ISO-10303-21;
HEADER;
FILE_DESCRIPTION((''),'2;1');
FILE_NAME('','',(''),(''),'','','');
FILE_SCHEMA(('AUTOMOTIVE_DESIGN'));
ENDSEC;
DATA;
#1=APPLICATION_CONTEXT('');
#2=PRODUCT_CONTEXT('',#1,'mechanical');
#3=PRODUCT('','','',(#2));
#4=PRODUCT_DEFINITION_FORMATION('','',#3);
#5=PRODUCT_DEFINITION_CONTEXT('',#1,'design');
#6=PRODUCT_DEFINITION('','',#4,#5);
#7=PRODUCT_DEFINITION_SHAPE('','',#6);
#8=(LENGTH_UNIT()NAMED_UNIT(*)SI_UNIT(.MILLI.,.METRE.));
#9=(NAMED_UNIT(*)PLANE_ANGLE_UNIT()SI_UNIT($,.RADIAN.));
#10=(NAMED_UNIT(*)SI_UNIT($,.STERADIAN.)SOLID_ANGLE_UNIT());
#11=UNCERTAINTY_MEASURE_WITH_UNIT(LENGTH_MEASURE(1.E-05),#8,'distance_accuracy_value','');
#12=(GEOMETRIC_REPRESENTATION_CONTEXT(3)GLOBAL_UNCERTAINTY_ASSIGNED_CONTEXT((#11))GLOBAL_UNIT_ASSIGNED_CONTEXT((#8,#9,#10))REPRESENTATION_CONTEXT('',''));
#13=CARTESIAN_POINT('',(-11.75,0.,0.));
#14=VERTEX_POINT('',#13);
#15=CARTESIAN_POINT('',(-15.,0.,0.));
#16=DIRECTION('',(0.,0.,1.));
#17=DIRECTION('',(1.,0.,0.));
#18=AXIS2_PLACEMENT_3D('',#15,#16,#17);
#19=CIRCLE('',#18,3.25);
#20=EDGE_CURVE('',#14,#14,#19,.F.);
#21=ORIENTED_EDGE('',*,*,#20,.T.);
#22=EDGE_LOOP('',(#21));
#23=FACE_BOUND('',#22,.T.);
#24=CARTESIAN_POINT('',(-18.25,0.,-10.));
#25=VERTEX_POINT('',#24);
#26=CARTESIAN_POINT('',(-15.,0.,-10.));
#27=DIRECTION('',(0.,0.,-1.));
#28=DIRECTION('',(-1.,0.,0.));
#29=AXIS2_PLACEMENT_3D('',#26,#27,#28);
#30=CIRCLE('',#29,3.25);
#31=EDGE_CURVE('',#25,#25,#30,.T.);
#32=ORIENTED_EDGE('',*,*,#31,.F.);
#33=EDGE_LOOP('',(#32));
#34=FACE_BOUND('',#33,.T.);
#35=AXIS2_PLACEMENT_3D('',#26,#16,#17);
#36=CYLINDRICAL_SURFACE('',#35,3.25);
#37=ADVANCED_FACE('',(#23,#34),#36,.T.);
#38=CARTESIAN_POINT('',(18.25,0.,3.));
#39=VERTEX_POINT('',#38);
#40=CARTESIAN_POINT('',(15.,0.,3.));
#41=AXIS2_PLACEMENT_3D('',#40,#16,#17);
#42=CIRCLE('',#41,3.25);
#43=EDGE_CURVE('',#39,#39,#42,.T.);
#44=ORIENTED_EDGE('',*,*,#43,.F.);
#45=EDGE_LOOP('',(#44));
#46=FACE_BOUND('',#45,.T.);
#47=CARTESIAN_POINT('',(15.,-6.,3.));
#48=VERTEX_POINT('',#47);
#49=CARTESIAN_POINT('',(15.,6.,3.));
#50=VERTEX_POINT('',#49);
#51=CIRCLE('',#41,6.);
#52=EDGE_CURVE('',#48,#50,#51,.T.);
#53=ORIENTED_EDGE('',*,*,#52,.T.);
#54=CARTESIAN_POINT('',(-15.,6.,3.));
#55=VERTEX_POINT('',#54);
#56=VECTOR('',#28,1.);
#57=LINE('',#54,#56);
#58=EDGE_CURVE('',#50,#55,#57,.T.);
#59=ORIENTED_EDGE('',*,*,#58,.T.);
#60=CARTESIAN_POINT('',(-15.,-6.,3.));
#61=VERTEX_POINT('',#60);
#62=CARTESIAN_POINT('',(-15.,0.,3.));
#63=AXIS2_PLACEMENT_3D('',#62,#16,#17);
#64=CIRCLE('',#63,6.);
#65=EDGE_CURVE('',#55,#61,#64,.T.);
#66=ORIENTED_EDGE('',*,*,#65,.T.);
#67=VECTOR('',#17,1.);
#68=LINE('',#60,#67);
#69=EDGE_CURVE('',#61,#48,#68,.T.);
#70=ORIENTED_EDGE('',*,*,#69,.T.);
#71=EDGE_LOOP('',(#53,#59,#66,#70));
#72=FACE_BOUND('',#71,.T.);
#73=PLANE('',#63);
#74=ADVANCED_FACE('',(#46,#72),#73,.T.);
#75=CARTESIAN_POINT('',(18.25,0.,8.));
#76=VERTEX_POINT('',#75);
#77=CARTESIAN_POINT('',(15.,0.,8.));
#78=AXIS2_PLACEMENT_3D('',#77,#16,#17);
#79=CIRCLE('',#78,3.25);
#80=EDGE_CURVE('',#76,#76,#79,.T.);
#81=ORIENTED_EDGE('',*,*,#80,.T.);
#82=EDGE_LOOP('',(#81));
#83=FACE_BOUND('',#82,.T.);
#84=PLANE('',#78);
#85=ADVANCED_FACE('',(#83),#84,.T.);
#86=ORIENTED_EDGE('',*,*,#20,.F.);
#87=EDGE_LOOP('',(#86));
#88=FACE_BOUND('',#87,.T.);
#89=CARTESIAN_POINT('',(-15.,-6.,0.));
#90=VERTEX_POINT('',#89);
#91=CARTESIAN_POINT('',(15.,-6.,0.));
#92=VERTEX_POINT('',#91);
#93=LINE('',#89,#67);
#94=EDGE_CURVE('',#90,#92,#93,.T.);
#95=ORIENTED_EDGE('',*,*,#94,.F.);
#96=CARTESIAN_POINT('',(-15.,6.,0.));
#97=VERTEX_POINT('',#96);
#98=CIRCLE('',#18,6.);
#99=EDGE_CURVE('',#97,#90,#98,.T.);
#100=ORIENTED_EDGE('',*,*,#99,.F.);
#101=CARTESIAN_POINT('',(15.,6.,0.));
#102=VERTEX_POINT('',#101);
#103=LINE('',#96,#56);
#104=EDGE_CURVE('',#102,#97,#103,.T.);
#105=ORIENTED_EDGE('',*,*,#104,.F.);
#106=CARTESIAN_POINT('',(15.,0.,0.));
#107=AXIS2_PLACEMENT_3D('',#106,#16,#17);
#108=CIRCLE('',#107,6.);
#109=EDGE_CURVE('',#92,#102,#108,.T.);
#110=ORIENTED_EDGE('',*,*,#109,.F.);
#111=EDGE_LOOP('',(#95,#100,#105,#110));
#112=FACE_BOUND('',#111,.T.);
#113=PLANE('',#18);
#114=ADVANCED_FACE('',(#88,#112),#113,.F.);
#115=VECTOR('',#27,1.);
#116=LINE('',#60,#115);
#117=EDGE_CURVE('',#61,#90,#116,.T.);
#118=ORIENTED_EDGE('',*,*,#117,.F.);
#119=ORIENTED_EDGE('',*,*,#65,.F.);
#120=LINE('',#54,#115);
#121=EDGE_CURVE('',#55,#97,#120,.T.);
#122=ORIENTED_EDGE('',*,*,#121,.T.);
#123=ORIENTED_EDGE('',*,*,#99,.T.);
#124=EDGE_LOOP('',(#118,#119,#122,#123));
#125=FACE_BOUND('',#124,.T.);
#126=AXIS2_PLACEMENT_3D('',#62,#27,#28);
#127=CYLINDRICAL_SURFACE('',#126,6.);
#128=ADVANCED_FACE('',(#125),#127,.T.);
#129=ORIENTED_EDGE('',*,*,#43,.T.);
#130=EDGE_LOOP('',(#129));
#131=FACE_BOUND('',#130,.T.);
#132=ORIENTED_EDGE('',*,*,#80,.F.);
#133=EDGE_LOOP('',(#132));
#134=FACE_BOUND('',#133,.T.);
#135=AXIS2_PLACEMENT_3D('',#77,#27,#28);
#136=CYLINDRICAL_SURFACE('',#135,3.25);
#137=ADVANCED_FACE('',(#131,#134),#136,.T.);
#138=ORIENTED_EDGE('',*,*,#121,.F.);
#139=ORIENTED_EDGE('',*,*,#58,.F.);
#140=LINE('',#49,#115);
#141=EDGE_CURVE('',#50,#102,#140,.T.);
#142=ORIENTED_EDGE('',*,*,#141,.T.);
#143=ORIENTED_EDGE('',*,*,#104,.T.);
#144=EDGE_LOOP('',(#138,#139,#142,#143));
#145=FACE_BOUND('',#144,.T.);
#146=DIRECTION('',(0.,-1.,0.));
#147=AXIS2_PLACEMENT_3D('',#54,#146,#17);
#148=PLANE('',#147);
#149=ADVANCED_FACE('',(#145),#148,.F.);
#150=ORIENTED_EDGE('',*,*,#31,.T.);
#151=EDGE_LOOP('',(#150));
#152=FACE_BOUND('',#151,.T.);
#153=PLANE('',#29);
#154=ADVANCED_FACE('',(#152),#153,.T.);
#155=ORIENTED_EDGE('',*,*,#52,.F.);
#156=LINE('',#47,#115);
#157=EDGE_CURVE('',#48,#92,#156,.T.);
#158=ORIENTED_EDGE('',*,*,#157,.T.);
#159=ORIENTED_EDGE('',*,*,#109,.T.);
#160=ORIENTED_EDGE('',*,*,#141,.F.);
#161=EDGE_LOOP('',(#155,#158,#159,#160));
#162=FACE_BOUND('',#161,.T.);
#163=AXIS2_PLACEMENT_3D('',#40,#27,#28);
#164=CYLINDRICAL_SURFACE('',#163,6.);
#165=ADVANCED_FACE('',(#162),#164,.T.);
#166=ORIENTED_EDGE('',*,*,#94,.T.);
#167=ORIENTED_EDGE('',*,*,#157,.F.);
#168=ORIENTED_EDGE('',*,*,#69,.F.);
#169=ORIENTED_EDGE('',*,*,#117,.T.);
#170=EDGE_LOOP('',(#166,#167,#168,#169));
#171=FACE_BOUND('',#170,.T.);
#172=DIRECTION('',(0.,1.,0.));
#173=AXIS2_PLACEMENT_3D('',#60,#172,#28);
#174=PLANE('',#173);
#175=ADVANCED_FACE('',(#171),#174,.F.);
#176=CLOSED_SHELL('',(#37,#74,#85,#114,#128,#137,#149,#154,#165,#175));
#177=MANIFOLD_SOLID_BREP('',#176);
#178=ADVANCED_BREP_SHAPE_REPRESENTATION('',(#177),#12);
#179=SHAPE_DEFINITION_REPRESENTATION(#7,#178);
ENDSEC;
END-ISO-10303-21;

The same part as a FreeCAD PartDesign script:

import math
import FreeCAD as App
import Part
import Sketcher

V = App.Vector
Q = App.Units.Quantity

doc = App.newDocument("Part")
body = doc.addObject("PartDesign::Body", "Body")

sketch1 = body.newObject("Sketcher::SketchObject", "Sketch")
sketch1.AttachmentSupport = (doc.getObject("XY_Plane"), [""])
sketch1.MapMode = "FlatFace"
sketch1.addGeometry([
    Part.LineSegment(V(15, 6, 0), V(-15, 6, 0)),
    Part.ArcOfCircle(Part.Circle(V(-15, 0, 0), V(0, 0, 1), 6), math.radians(90), math.radians(270)),
    Part.LineSegment(V(-15, -6, 0), V(15, -6, 0)),
    Part.ArcOfCircle(Part.Circle(V(15, 0, 0), V(0, 0, 1), 6), math.radians(-90), math.radians(90)),
], False)
sketch1.addConstraint([
    Sketcher.Constraint("Tangent", 0, 2, 1, 1),
    Sketcher.Constraint("Tangent", 1, 2, 2, 1),
    Sketcher.Constraint("Tangent", 2, 2, 3, 1),
    Sketcher.Constraint("Tangent", 3, 2, 0, 1),
    Sketcher.Constraint("Horizontal", 0),
    Sketcher.Constraint("Horizontal", 2),
    Sketcher.Constraint("Symmetric", 1, 3, 3, 3, -1, 1),
    Sketcher.Constraint("Radius", 1, Q("6 mm")),
    Sketcher.Constraint("DistanceX", 0, 2, 0, 1, Q("30 mm")),
])
pad1 = body.newObject("PartDesign::Pad", "Pad")
pad1.Profile = sketch1
pad1.Length = 3

sketch2 = body.newObject("Sketcher::SketchObject", "Sketch001")
sketch2.AttachmentSupport = (doc.getObject("XY_Plane"), [""])
sketch2.MapMode = "FlatFace"
sketch2.AttachmentOffset = App.Placement(V(0, 0, 3), App.Rotation())
sketch2.addGeometry(Part.Circle(V(15, 0, 0), V(0, 0, 1), 3.25), False)
sketch2.addConstraint([
    Sketcher.Constraint("PointOnObject", 0, 3, -1),
    Sketcher.Constraint("Diameter", 0, Q("6.5 mm")),
    Sketcher.Constraint("DistanceX", -1, 1, 0, 3, Q("15 mm")),
])
pad2 = body.newObject("PartDesign::Pad", "Pad001")
pad2.Profile = sketch2
pad2.Length = 5

sketch3 = body.newObject("Sketcher::SketchObject", "Sketch002")
sketch3.AttachmentSupport = (doc.getObject("XY_Plane"), [""])
sketch3.MapMode = "FlatFace"
sketch3.addGeometry(Part.Circle(V(-15, 0, 0), V(0, 0, 1), 3.25), False)
sketch3.addConstraint([
    Sketcher.Constraint("PointOnObject", 0, 3, -1),
    Sketcher.Constraint("Diameter", 0, Q("6.5 mm")),
    Sketcher.Constraint("DistanceX", 0, 3, -1, 1, Q("15 mm")),
])
pad3 = body.newObject("PartDesign::Pad", "Pad002")
pad3.Profile = sketch3
pad3.Length = 10
pad3.Reversed = True

doc.recompute()
